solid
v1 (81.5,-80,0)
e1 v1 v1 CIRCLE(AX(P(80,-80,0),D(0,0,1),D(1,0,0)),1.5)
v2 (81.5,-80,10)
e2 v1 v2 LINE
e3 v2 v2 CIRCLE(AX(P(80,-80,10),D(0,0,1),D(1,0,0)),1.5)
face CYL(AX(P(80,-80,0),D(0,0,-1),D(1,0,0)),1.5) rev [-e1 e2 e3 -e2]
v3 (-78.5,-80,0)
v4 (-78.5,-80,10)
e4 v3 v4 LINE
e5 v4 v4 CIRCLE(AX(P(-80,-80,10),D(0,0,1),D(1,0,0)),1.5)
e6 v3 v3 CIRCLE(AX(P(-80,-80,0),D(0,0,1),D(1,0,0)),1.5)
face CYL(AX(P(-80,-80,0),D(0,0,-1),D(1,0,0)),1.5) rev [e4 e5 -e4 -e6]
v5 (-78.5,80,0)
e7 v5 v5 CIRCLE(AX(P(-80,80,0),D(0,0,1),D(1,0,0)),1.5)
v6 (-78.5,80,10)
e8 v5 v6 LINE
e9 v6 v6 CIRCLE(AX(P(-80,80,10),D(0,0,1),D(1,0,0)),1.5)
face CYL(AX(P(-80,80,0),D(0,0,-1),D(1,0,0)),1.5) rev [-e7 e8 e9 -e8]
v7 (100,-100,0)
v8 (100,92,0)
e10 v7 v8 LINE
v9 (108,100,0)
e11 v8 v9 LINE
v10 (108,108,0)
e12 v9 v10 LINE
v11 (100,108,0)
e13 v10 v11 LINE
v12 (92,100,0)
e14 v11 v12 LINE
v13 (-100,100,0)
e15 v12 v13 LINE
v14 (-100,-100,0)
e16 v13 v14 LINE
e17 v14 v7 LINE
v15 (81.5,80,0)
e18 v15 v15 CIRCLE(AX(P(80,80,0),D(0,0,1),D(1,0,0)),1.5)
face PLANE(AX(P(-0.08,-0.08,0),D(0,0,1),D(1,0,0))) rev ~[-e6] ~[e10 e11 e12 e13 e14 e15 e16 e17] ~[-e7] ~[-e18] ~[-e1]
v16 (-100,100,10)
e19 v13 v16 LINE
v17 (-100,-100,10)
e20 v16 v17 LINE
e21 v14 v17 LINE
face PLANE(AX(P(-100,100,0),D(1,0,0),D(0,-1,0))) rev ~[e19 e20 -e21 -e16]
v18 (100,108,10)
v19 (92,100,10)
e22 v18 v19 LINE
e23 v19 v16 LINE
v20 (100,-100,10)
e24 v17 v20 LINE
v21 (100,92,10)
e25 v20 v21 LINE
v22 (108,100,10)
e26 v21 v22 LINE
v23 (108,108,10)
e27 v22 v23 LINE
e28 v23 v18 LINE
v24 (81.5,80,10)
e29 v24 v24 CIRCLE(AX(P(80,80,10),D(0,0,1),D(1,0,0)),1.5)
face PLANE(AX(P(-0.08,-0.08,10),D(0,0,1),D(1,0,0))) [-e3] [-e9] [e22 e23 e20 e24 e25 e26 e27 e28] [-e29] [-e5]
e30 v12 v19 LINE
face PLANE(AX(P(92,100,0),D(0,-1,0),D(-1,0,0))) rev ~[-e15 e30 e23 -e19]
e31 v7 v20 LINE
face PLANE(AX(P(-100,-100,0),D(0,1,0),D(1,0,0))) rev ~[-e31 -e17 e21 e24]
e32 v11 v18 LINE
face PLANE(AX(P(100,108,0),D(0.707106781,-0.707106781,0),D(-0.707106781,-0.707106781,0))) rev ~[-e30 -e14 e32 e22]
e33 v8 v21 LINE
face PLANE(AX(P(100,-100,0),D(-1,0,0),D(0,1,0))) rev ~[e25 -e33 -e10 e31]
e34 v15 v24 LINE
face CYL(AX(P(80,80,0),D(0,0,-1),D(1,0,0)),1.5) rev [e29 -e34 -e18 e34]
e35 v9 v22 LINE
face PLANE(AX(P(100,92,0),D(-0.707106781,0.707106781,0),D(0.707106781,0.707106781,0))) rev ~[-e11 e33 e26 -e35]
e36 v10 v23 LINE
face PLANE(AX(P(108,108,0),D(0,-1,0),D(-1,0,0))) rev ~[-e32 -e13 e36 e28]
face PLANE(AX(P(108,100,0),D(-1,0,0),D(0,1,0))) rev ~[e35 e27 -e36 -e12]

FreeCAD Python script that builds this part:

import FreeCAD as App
import Part
import Sketcher
from FreeCAD import Vector
Q = App.Units.Quantity


def add_polygon(sketch, points):
    """Adds a closed chain of lines whose ends are joined by coincident constraints."""
    first, n = sketch.GeometryCount, len(points)
    for a, b in zip(points, points[1:] + points[:1]):
        sketch.addGeometry(Part.LineSegment(App.Vector(*a, 0), App.Vector(*b, 0)), False)
    for i in range(n):
        sketch.addConstraint(Sketcher.Constraint("Coincident", first + i, 2, first + (i + 1) % n, 1))

doc = App.newDocument("Part")
params = doc.addObject("Spreadsheet::Sheet", "Params")
for row, (alias, value) in enumerate([
    ("sketch1_diameter", "3 mm"),
    ("sketch1_width", "200 mm"),
    ("sketch1_width2", "8 mm"),
    ("pad1_length", "10 mm"),
], start=1):
    params.set(f"A{row}", alias)
    params.set(f"B{row}", "=" + value)
    params.setAlias(f"B{row}", alias)

body = doc.addObject("PartDesign::Body", "Body")

# Sketch on XY plane
sketch1 = doc.addObject("Sketcher::SketchObject", "Sketch")
body.addObject(sketch1)
sketch1.AttachmentSupport = (doc.XY_Plane, [""])
sketch1.MapMode = "FlatFace"
add_polygon(sketch1, [(-100, -100), (100, -100), (100, 92), (108, 100), (108, 108), (100, 108), (92, 100), (-100, 100)])  # lines 0-7
sketch1.addGeometry(Part.Circle(Vector(-80, -80, 0), Vector(0, 0, 1), 1.5), False)  # 8
sketch1.addGeometry(Part.Circle(Vector(80, -80, 0), Vector(0, 0, 1), 1.5), False)  # 9
sketch1.addGeometry(Part.Circle(Vector(-80, 80, 0), Vector(0, 0, 1), 1.5), False)  # 10
sketch1.addGeometry(Part.Circle(Vector(80, 80, 0), Vector(0, 0, 1), 1.5), False)  # 11
sketch1.addConstraint([
    Sketcher.Constraint("Horizontal", 0),
    Sketcher.Constraint("Vertical", 1),
    Sketcher.Constraint("Vertical", 3),
    Sketcher.Constraint("Horizontal", 4),
    Sketcher.Constraint("Horizontal", 6),
    Sketcher.Constraint("Vertical", 7),
    Sketcher.Constraint("Equal", 8, 9),
    Sketcher.Constraint("Equal", 9, 10),
    Sketcher.Constraint("Equal", 10, 11),
    Sketcher.Constraint("Symmetric", 9, 3, 10, 3, -1, 1),
    Sketcher.Constraint("Symmetric", 8, 3, 11, 3, -1, 1),
    Sketcher.Constraint("Symmetric", 0, 2, 6, 2, -1, 1),
    Sketcher.Constraint("Symmetric", 8, 3, 9, 3, -2),
    Sketcher.Constraint("Parallel", 2, 5),
    Sketcher.Constraint("Horizontal", 2, 2, 5, 2),
    Sketcher.Constraint("Vertical", 1, 2, 4, 2),
    Sketcher.Constraint("Equal", 6, 1),
    Sketcher.Constraint("Equal", 4, 3),
    Sketcher.Constraint("Equal", 0, 7),
    Sketcher.Constraint("Diameter", 8, Q("3 mm")),
    Sketcher.Constraint("DistanceX", 0, 1, 0, 2, Q("200 mm")),
    Sketcher.Constraint("DistanceX", 4, 2, 4, 1, Q("8 mm")),
    Sketcher.Constraint("DistanceX", 8, 3, -1, 1, Q("80 mm")),
    Sketcher.Constraint("DistanceY", 8, 3, -1, 1, Q("80 mm")),
])
sketch1.setExpression("Constraints[27]", "Params.sketch1_diameter")
sketch1.setExpression("Constraints[28]", "Params.sketch1_width")
sketch1.setExpression("Constraints[29]", "Params.sketch1_width2")
pad1 = doc.addObject("PartDesign::Pad", "Pad")
body.addObject(pad1)
pad1.Profile = sketch1
pad1.setExpression("Length", "Params.pad1_length")

doc.recompute()
